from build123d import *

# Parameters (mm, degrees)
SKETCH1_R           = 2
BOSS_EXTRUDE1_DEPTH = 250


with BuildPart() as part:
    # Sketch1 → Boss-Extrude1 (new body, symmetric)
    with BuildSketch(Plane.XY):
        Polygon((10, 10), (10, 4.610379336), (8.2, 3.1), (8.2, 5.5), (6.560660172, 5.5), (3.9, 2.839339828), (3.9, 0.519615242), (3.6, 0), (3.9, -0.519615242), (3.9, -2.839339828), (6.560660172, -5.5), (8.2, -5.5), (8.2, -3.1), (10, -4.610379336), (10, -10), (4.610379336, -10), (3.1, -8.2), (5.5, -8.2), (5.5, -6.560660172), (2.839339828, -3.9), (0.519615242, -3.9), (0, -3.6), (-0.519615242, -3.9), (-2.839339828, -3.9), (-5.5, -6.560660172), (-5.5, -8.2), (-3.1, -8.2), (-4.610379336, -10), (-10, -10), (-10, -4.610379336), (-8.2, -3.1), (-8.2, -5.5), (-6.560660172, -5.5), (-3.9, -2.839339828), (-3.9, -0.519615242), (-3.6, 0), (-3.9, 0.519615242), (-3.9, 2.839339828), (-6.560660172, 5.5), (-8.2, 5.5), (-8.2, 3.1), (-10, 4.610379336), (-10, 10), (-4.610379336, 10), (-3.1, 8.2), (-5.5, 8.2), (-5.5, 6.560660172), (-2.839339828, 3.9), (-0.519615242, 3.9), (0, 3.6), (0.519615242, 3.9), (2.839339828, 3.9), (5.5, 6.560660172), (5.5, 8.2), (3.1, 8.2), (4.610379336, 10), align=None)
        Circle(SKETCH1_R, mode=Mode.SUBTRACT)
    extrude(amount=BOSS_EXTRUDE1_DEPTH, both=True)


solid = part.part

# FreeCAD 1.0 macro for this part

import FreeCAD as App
import Part
import Sketcher
from FreeCAD import Vector
Q = App.Units.Quantity

doc = App.newDocument("Part")
body = doc.addObject("PartDesign::Body", "Body")

# Sketch on XY plane
sketch1 = body.newObject("Sketcher::SketchObject", "Sketch")
sketch1.AttachmentSupport = (doc.getObject("XY_Plane"), [""])
sketch1.MapMode = "FlatFace"
sketch1.addGeometry([
    Part.LineSegment(Vector(10, 4.6, 0), Vector(10, 10, 0)),  # 0
    Part.LineSegment(Vector(10, 10, 0), Vector(4.6, 10, 0)),  # 1
    Part.LineSegment(Vector(4.6, 10, 0), Vector(3.1, 8.2, 0)),  # 2
    Part.LineSegment(Vector(3.1, 8.2, 0), Vector(5.5, 8.2, 0)),  # 3
    Part.LineSegment(Vector(5.5, 8.2, 0), Vector(5.5, 6.6, 0)),  # 4
    Part.LineSegment(Vector(5.5, 6.6, 0), Vector(2.8, 3.9, 0)),  # 5
    Part.LineSegment(Vector(2.8, 3.9, 0), Vector(0.5, 3.9, 0)),  # 6
    Part.LineSegment(Vector(0.5, 3.9, 0), Vector(0, 3.6, 0)),  # 7
    Part.LineSegment(Vector(0, 3.6, 0), Vector(-0.5, 3.9, 0)),  # 8
    Part.LineSegment(Vector(-0.5, 3.9, 0), Vector(-2.8, 3.9, 0)),  # 9
    Part.LineSegment(Vector(-2.8, 3.9, 0), Vector(-5.5, 6.6, 0)),  # 10
    Part.LineSegment(Vector(-5.5, 6.6, 0), Vector(-5.5, 8.2, 0)),  # 11
    Part.LineSegment(Vector(-5.5, 8.2, 0), Vector(-3.1, 8.2, 0)),  # 12
    Part.LineSegment(Vector(-3.1, 8.2, 0), Vector(-4.6, 10, 0)),  # 13
    Part.LineSegment(Vector(-4.6, 10, 0), Vector(-10, 10, 0)),  # 14
    Part.LineSegment(Vector(-10, 10, 0), Vector(-10, 4.6, 0)),  # 15
    Part.LineSegment(Vector(-10, 4.6, 0), Vector(-8.2, 3.1, 0)),  # 16
    Part.LineSegment(Vector(-8.2, 3.1, 0), Vector(-8.2, 5.5, 0)),  # 17
    Part.LineSegment(Vector(-8.2, 5.5, 0), Vector(-6.6, 5.5, 0)),  # 18
    Part.LineSegment(Vector(-6.6, 5.5, 0), Vector(-3.9, 2.8, 0)),  # 19
    Part.LineSegment(Vector(-3.9, 2.8, 0), Vector(-3.9, 0.5, 0)),  # 20
    Part.LineSegment(Vector(-3.9, 0.5, 0), Vector(-3.6, 0, 0)),  # 21
    Part.LineSegment(Vector(-3.6, 0, 0), Vector(-3.9, -0.5, 0)),  # 22
    Part.LineSegment(Vector(-3.9, -0.5, 0), Vector(-3.9, -2.8, 0)),  # 23
    Part.LineSegment(Vector(-3.9, -2.8, 0), Vector(-6.6, -5.5, 0)),  # 24
    Part.LineSegment(Vector(-6.6, -5.5, 0), Vector(-8.2, -5.5, 0)),  # 25
    Part.LineSegment(Vector(-8.2, -5.5, 0), Vector(-8.2, -3.1, 0)),  # 26
    Part.LineSegment(Vector(-8.2, -3.1, 0), Vector(-10, -4.6, 0)),  # 27
    Part.LineSegment(Vector(-10, -4.6, 0), Vector(-10, -10, 0)),  # 28
    Part.LineSegment(Vector(-10, -10, 0), Vector(-4.6, -10, 0)),  # 29
    Part.LineSegment(Vector(-4.6, -10, 0), Vector(-3.1, -8.2, 0)),  # 30
    Part.LineSegment(Vector(-3.1, -8.2, 0), Vector(-5.5, -8.2, 0)),  # 31
    Part.LineSegment(Vector(-5.5, -8.2, 0), Vector(-5.5, -6.6, 0)),  # 32
    Part.LineSegment(Vector(-5.5, -6.6, 0), Vector(-2.8, -3.9, 0)),  # 33
    Part.LineSegment(Vector(-2.8, -3.9, 0), Vector(-0.5, -3.9, 0)),  # 34
    Part.LineSegment(Vector(-0.5, -3.9, 0), Vector(0, -3.6, 0)),  # 35
    Part.LineSegment(Vector(0, -3.6, 0), Vector(0.5, -3.9, 0)),  # 36
    Part.LineSegment(Vector(0.5, -3.9, 0), Vector(2.8, -3.9, 0)),  # 37
    Part.LineSegment(Vector(2.8, -3.9, 0), Vector(5.5, -6.6, 0)),  # 38
    Part.LineSegment(Vector(5.5, -6.6, 0), Vector(5.5, -8.2, 0)),  # 39
    Part.LineSegment(Vector(5.5, -8.2, 0), Vector(3.1, -8.2, 0)),  # 40
    Part.LineSegment(Vector(3.1, -8.2, 0), Vector(4.6, -10, 0)),  # 41
    Part.LineSegment(Vector(4.6, -10, 0), Vector(10, -10, 0)),  # 42
    Part.LineSegment(Vector(10, -10, 0), Vector(10, -4.6, 0)),  # 43
    Part.LineSegment(Vector(10, -4.6, 0), Vector(8.2, -3.1, 0)),  # 44
    Part.LineSegment(Vector(8.2, -3.1, 0), Vector(8.2, -5.5, 0)),  # 45
    Part.LineSegment(Vector(8.2, -5.5, 0), Vector(6.6, -5.5, 0)),  # 46
    Part.LineSegment(Vector(6.6, -5.5, 0), Vector(3.9, -2.8, 0)),  # 47
    Part.LineSegment(Vector(3.9, -2.8, 0), Vector(3.9, -0.5, 0)),  # 48
    Part.LineSegment(Vector(3.9, -0.5, 0), Vector(3.6, 0, 0)),  # 49
    Part.LineSegment(Vector(3.6, 0, 0), Vector(3.9, 0.5, 0)),  # 50
    Part.LineSegment(Vector(3.9, 0.5, 0), Vector(3.9, 2.8, 0)),  # 51
    Part.LineSegment(Vector(3.9, 2.8, 0), Vector(6.6, 5.5, 0)),  # 52
    Part.LineSegment(Vector(6.6, 5.5, 0), Vector(8.2, 5.5, 0)),  # 53
    Part.LineSegment(Vector(8.2, 5.5, 0), Vector(8.2, 3.1, 0)),  # 54
    Part.LineSegment(Vector(8.2, 3.1, 0), Vector(10, 4.6, 0)),  # 55
    Part.Circle(Vector(0, 0, 0), Vector(0, 0, 1), 2),  # 56
], False)
sketch1.addConstraint([
    Sketcher.Constraint("Coincident", 0, 2, 1, 1),
    Sketcher.Constraint("Coincident", 1, 2, 2, 1),
    Sketcher.Constraint("Coincident", 2, 2, 3, 1),
    Sketcher.Constraint("Coincident", 3, 2, 4, 1),
    Sketcher.Constraint("Coincident", 4, 2, 5, 1),
    Sketcher.Constraint("Coincident", 5, 2, 6, 1),
    Sketcher.Constraint("Coincident", 6, 2, 7, 1),
    Sketcher.Constraint("Coincident", 7, 2, 8, 1),
    Sketcher.Constraint("Coincident", 8, 2, 9, 1),
    Sketcher.Constraint("Coincident", 9, 2, 10, 1),
    Sketcher.Constraint("Coincident", 10, 2, 11, 1),
    Sketcher.Constraint("Coincident", 11, 2, 12, 1),
    Sketcher.Constraint("Coincident", 12, 2, 13, 1),
    Sketcher.Constraint("Coincident", 13, 2, 14, 1),
    Sketcher.Constraint("Coincident", 14, 2, 15, 1),
    Sketcher.Constraint("Coincident", 15, 2, 16, 1),
    Sketcher.Constraint("Coincident", 16, 2, 17, 1),
    Sketcher.Constraint("Coincident", 17, 2, 18, 1),
    Sketcher.Constraint("Coincident", 18, 2, 19, 1),
    Sketcher.Constraint("Coincident", 19, 2, 20, 1),
    Sketcher.Constraint("Coincident", 20, 2, 21, 1),
    Sketcher.Constraint("Coincident", 21, 2, 22, 1),
    Sketcher.Constraint("Coincident", 22, 2, 23, 1),
    Sketcher.Constraint("Coincident", 23, 2, 24, 1),
    Sketcher.Constraint("Coincident", 24, 2, 25, 1),
    Sketcher.Constraint("Coincident", 25, 2, 26, 1),
    Sketcher.Constraint("Coincident", 26, 2, 27, 1),
    Sketcher.Constraint("Coincident", 27, 2, 28, 1),
    Sketcher.Constraint("Coincident", 28, 2, 29, 1),
    Sketcher.Constraint("Coincident", 29, 2, 30, 1),
    Sketcher.Constraint("Coincident", 30, 2, 31, 1),
    Sketcher.Constraint("Coincident", 31, 2, 32, 1),
    Sketcher.Constraint("Coincident", 32, 2, 33, 1),
    Sketcher.Constraint("Coincident", 33, 2, 34, 1),
    Sketcher.Constraint("Coincident", 34, 2, 35, 1),
    Sketcher.Constraint("Coincident", 35, 2, 36, 1),
    Sketcher.Constraint("Coincident", 36, 2, 37, 1),
    Sketcher.Constraint("Coincident", 37, 2, 38, 1),
    Sketcher.Constraint("Coincident", 38, 2, 39, 1),
    Sketcher.Constraint("Coincident", 39, 2, 40, 1),
    Sketcher.Constraint("Coincident", 40, 2, 41, 1),
    Sketcher.Constraint("Coincident", 41, 2, 42, 1),
    Sketcher.Constraint("Coincident", 42, 2, 43, 1),
    Sketcher.Constraint("Coincident", 43, 2, 44, 1),
    Sketcher.Constraint("Coincident", 44, 2, 45, 1),
    Sketcher.Constraint("Coincident", 45, 2, 46, 1),
    Sketcher.Constraint("Coincident", 46, 2, 47, 1),
    Sketcher.Constraint("Coincident", 47, 2, 48, 1),
    Sketcher.Constraint("Coincident", 48, 2, 49, 1),
    Sketcher.Constraint("Coincident", 49, 2, 50, 1),
    Sketcher.Constraint("Coincident", 50, 2, 51, 1),
    Sketcher.Constraint("Coincident", 51, 2, 52, 1),
    Sketcher.Constraint("Coincident", 52, 2, 53, 1),
    Sketcher.Constraint("Coincident", 53, 2, 54, 1),
    Sketcher.Constraint("Coincident", 54, 2, 55, 1),
    Sketcher.Constraint("Coincident", 55, 2, 0, 1),
    Sketcher.Constraint("Vertical", 0),
    Sketcher.Constraint("Horizontal", 1),
    Sketcher.Constraint("Horizontal", 3),
    Sketcher.Constraint("Vertical", 4),
    Sketcher.Constraint("Horizontal", 6),
    Sketcher.Constraint("Horizontal", 9),
    Sketcher.Constraint("Vertical", 11),
    Sketcher.Constraint("Horizontal", 12),
    Sketcher.Constraint("Horizontal", 14),
    Sketcher.Constraint("Vertical", 15),
    Sketcher.Constraint("Vertical", 17),
    Sketcher.Constraint("Horizontal", 18),
    Sketcher.Constraint("Vertical", 20),
    Sketcher.Constraint("Vertical", 23),
    Sketcher.Constraint("Horizontal", 25),
    Sketcher.Constraint("Vertical", 26),
    Sketcher.Constraint("Vertical", 28),
    Sketcher.Constraint("Horizontal", 29),
    Sketcher.Constraint("Horizontal", 31),
    Sketcher.Constraint("Vertical", 32),
    Sketcher.Constraint("Horizontal", 34),
    Sketcher.Constraint("Horizontal", 37),
    Sketcher.Constraint("Vertical", 39),
    Sketcher.Constraint("Horizontal", 40),
    Sketcher.Constraint("Horizontal", 42),
    Sketcher.Constraint("Vertical", 43),
    Sketcher.Constraint("Vertical", 45),
    Sketcher.Constraint("Horizontal", 46),
    Sketcher.Constraint("Vertical", 48),
    Sketcher.Constraint("Vertical", 51),
    Sketcher.Constraint("Horizontal", 53),
    Sketcher.Constraint("Vertical", 54),
    Sketcher.Constraint("Coincident", 56, 3, -1, 1),
    Sketcher.Constraint("Symmetric", 0, 2, 28, 2, -1, 1),
    Sketcher.Constraint("Symmetric", 2, 2, 30, 2, -1, 1),
    Sketcher.Constraint("Symmetric", 4, 2, 32, 2, -1, 1),
    Sketcher.Constraint("Symmetric", 5, 2, 33, 2, -1, 1),
    Sketcher.Constraint("Symmetric", 7, 2, 35, 2, -1, 1),
    Sketcher.Constraint("Symmetric", 8, 2, 36, 2, -1, 1),
    Sketcher.Constraint("Symmetric", 10, 2, 38, 2, -1, 1),
    Sketcher.Constraint("Symmetric", 12, 2, 40, 2, -1, 1),
    Sketcher.Constraint("Symmetric", 13, 2, 41, 2, -1, 1),
    Sketcher.Constraint("Symmetric", 15, 2, 43, 2, -1, 1),
    Sketcher.Constraint("Symmetric", 16, 2, 44, 2, -1, 1),
    Sketcher.Constraint("Symmetric", 18, 2, 46, 2, -1, 1),
    Sketcher.Constraint("Symmetric", 19, 2, 47, 2, -1, 1),
    Sketcher.Constraint("Symmetric", 21, 2, 49, 2, -1, 1),
    Sketcher.Constraint("Symmetric", 22, 2, 50, 2, -1, 1),
    Sketcher.Constraint("Symmetric", 24, 2, 52, 2, -1, 1),
    Sketcher.Constraint("Symmetric", 26, 2, 54, 2, -1, 1),
    Sketcher.Constraint("Symmetric", 6, 2, 8, 2, -2),
    Sketcher.Constraint("Symmetric", 4, 2, 10, 2, -2),
    Sketcher.Constraint("Symmetric", 2, 2, 12, 2, -2),
    Sketcher.Constraint("Symmetric", 1, 2, 13, 2, -2),
    Sketcher.Constraint("Symmetric", 27, 2, 43, 2, -2),
    Sketcher.Constraint("Symmetric", 26, 2, 44, 2, -2),
    Sketcher.Constraint("Symmetric", 24, 2, 46, 2, -2),
    Sketcher.Constraint("Symmetric", 23, 2, 47, 2, -2),
    Sketcher.Constraint("PointOnObject", 7, 2, -2),
    Sketcher.Constraint("PointOnObject", 21, 2, -1),
    Sketcher.Constraint("Perpendicular", 5, 10),
    Sketcher.Constraint("Perpendicular", 2, 16),
    Sketcher.Constraint("Parallel", 10, 19),
    Sketcher.Constraint("Perpendicular", 7, 21),
    Sketcher.Constraint("Perpendicular", 8, 22),
    Sketcher.Constraint("Perpendicular", 19, 24),
    Sketcher.Constraint("Perpendicular", 16, 30),
    Sketcher.Constraint("Perpendicular", 21, 35),
    Sketcher.Constraint("Perpendicular", 33, 38),
    Sketcher.Constraint("Perpendicular", 35, 49),
    Sketcher.Constraint("Perpendicular", 47, 52),
    Sketcher.Constraint("Perpendicular", 41, 55),
    Sketcher.Constraint("Equal", 42, 0),
    Sketcher.Constraint("Equal", 53, 4),
    Sketcher.Constraint("Equal", 40, 17),
    Sketcher.Constraint("Equal", 37, 20),
    Sketcher.Constraint("Equal", 13, 16),
    Sketcher.Constraint("Equal", 10, 19),
    Sketcher.Constraint("Equal", 8, 21),
    Sketcher.Constraint("Diameter", 56, 4.0),
    Sketcher.Constraint("Angle", 2, Q("-130 deg")),
    Sketcher.Constraint("Angle", 7, Q("-150 deg")),
    Sketcher.Constraint("DistanceX", 3, 1, 3, 2, 2.4),
    Sketcher.Constraint("DistanceX", -1, 1, 0, 2, 10.0),
    Sketcher.Constraint("Distance", 7, 0.6),
    Sketcher.Constraint("DistanceX", -1, 1, 2, 2, 3.1),
    Sketcher.Constraint("DistanceY", -1, 1, 2, 2, 8.2),
    Sketcher.Constraint("DistanceY", -1, 1, 5, 2, 3.9),
    Sketcher.Constraint("DistanceX", 18, 1, 18, 2, 1.63934),
])
pad1 = body.newObject("PartDesign::Pad", "Pad")
pad1.Profile = sketch1
pad1.Length = 500
pad1.Midplane = True

doc.recompute()
